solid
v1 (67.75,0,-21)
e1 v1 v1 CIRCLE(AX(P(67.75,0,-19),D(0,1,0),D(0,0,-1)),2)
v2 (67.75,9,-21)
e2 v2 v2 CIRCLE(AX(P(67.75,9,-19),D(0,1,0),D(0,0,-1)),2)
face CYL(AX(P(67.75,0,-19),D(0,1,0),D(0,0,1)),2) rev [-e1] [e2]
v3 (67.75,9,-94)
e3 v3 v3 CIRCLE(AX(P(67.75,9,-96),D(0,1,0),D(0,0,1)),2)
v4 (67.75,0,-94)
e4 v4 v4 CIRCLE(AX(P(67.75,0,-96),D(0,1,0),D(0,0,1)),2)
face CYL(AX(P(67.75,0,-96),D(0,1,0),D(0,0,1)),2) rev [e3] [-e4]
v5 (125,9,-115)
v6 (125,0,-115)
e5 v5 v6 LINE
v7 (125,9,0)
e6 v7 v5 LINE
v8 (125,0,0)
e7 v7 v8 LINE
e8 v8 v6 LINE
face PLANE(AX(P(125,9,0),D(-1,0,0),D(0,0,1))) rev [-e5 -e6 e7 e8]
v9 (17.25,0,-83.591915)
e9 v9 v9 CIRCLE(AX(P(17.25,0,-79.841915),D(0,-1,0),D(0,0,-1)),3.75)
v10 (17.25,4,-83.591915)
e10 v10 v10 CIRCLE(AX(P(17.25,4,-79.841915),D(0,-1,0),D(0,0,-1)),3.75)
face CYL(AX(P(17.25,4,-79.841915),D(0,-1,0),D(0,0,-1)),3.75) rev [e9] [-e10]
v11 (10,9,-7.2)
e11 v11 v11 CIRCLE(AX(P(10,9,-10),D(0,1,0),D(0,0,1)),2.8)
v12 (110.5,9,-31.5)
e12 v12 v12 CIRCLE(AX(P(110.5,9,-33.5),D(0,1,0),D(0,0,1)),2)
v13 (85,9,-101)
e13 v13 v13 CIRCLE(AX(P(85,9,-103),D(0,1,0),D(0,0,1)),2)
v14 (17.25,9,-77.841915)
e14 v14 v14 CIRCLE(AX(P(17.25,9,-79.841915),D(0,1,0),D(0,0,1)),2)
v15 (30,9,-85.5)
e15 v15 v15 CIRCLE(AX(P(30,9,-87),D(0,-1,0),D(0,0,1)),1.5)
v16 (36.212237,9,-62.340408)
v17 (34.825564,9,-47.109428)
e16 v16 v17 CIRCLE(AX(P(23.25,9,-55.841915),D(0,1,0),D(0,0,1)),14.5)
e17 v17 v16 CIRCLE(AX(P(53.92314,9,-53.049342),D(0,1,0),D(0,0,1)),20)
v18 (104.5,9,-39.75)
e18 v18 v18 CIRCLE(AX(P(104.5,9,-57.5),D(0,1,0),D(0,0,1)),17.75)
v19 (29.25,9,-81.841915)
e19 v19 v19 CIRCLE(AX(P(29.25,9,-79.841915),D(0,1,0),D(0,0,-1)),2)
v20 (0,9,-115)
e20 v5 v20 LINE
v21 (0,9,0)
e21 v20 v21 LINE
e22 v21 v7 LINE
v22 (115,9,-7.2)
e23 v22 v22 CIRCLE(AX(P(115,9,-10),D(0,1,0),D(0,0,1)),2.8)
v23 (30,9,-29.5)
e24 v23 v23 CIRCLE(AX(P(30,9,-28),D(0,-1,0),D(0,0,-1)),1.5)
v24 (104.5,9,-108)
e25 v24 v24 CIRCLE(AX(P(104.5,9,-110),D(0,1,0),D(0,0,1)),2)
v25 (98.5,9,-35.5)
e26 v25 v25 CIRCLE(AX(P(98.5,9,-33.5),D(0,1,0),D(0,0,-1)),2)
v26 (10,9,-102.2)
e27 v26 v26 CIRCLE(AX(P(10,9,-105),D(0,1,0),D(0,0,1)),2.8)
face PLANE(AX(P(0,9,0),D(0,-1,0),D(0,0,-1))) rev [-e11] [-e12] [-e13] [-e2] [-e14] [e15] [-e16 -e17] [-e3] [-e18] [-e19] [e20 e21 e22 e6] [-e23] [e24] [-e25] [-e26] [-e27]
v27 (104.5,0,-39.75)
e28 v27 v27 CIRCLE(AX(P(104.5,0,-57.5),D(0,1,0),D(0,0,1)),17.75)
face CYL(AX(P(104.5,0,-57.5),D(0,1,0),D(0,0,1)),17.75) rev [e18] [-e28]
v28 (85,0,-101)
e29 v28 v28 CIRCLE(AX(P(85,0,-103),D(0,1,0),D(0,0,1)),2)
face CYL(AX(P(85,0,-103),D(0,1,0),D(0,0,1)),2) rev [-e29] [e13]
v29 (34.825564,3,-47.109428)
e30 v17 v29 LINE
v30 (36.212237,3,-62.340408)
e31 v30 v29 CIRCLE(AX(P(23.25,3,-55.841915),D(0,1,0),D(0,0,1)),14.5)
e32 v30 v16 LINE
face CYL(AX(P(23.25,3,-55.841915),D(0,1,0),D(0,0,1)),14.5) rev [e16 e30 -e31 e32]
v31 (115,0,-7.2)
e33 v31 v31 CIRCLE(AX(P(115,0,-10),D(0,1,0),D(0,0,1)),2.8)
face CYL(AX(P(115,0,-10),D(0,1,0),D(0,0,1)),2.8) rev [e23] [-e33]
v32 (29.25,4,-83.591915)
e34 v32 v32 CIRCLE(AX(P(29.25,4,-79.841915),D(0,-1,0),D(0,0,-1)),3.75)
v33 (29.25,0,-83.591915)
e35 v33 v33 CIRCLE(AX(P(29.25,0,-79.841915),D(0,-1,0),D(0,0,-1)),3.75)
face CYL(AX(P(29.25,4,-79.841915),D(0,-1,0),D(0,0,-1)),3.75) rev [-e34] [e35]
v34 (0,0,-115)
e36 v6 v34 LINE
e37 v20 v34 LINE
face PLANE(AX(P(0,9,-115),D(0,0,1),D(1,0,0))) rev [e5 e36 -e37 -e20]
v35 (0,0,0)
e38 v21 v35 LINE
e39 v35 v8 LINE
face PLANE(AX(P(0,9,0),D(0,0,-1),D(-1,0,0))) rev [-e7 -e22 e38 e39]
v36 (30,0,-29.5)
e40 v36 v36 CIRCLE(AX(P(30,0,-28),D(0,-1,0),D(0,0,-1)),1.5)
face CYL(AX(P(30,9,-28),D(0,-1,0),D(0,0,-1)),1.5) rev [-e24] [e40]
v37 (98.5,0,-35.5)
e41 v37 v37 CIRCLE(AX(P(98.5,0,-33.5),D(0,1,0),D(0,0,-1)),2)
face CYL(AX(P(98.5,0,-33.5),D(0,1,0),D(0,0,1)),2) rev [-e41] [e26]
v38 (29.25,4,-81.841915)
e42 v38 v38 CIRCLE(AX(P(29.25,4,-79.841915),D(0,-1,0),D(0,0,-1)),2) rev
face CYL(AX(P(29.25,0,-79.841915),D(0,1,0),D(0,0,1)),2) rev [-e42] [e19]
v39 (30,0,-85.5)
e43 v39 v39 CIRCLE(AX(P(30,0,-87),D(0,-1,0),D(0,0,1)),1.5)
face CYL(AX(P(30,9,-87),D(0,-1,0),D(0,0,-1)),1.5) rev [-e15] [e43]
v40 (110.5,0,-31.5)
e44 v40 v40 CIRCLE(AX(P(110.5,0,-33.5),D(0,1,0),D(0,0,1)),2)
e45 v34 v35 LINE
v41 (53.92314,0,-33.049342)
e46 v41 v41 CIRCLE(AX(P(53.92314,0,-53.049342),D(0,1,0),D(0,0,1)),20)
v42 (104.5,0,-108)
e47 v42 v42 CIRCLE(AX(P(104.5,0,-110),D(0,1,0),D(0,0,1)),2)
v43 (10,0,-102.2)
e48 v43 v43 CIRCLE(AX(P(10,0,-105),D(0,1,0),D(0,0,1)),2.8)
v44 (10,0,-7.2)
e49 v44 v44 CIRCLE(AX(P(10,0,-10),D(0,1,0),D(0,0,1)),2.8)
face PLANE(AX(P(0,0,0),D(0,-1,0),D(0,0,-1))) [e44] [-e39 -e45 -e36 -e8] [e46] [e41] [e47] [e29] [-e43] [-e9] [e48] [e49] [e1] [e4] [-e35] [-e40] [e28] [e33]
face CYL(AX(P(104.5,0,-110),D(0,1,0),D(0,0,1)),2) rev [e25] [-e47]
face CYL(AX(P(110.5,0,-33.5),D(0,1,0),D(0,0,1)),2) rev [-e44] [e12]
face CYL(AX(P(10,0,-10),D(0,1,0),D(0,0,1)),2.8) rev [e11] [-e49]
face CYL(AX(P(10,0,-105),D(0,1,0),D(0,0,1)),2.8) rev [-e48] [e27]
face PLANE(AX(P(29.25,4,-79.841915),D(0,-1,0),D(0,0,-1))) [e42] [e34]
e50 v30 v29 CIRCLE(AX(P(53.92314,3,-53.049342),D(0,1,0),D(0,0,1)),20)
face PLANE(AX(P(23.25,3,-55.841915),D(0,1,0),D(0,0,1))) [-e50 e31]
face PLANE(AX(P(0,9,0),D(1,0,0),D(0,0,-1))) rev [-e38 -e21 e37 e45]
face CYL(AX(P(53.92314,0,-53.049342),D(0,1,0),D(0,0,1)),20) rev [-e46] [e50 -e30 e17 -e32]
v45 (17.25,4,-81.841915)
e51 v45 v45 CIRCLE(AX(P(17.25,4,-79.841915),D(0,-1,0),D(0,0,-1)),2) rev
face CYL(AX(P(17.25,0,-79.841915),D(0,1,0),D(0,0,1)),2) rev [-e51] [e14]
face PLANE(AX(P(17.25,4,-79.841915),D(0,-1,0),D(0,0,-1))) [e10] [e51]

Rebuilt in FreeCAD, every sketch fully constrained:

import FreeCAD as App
import Part
import Sketcher

V = App.Vector
Q = App.Units.Quantity

doc = App.newDocument("Part")
body = doc.addObject("PartDesign::Body", "Body")

# Sketch on XZ plane
sketch1 = doc.addObject("Sketcher::SketchObject", "Sketch")
body.addObject(sketch1)
sketch1.AttachmentSupport = (doc.XZ_Plane, [""])
sketch1.MapMode = "FlatFace"
sketch1.addGeometry([
    Part.LineSegment(V(0, -115, 0), V(0, 0, 0)),
    Part.LineSegment(V(0, 0, 0), V(125, 0, 0)),
    Part.LineSegment(V(125, 0, 0), V(125, -115, 0)),
    Part.LineSegment(V(125, -115, 0), V(0, -115, 0)),
], False)
sketch1.addConstraint([
    Sketcher.Constraint("Coincident", 0, 2, 1, 1),
    Sketcher.Constraint("Coincident", 1, 2, 2, 1),
    Sketcher.Constraint("Coincident", 2, 2, 3, 1),
    Sketcher.Constraint("Coincident", 3, 2, 0, 1),
    Sketcher.Constraint("Vertical", 0),
    Sketcher.Constraint("Horizontal", 1),
    Sketcher.Constraint("Vertical", 2),
    Sketcher.Constraint("Horizontal", 3),
    Sketcher.Constraint("Coincident", 0, 2, -1, 1),
    Sketcher.Constraint("DistanceX", 1, 1, 1, 2, Q("125 mm")),
    Sketcher.Constraint("DistanceY", 0, 1, 0, 2, Q("115 mm")),
])
pad1 = doc.addObject("PartDesign::Pad", "Pad")
body.addObject(pad1)
pad1.Profile = sketch1
pad1.Length = 9
pad1.Reversed = True

# Sketch on XZ plane
sketch2 = doc.addObject("Sketcher::SketchObject", "Sketch001")
body.addObject(sketch2)
sketch2.AttachmentSupport = (doc.XZ_Plane, [""])
sketch2.MapMode = "FlatFace"
sketch2.AttachmentOffset = App.Placement(V(0, 0, -9), App.Rotation())
sketch2.addGeometry(Part.Circle(V(23, -56, 0), V(0, 0, 1), 14), False)
sketch2.addConstraint([
    Sketcher.Constraint("Diameter", 0, Q("29 mm")),
    Sketcher.Constraint("DistanceX", -1, 1, 0, 3, Q("23.25 mm")),
    Sketcher.Constraint("DistanceY", 0, 3, -1, 1, Q("55.841915 mm")),
])
pocket1 = doc.addObject("PartDesign::Pocket", "Pocket")
body.addObject(pocket1)
pocket1.Profile = sketch2
pocket1.Length = 6
pocket1.Reversed = True

# Sketch on XZ plane
sketch3 = doc.addObject("Sketcher::SketchObject", "Sketch002")
body.addObject(sketch3)
sketch3.AttachmentSupport = (doc.XZ_Plane, [""])
sketch3.MapMode = "FlatFace"
sketch3.AttachmentOffset = App.Placement(V(0, 0, -9), App.Rotation())
sketch3.addGeometry(Part.Circle(V(54, -53, 0), V(0, 0, 1), 20), False)
sketch3.addConstraint([
    Sketcher.Constraint("Diameter", 0, Q("40 mm")),
    Sketcher.Constraint("DistanceX", -1, 1, 0, 3, Q("53.92314 mm")),
    Sketcher.Constraint("DistanceY", 0, 3, -1, 1, Q("53.049342 mm")),
])
pocket2 = doc.addObject("PartDesign::Pocket", "Pocket001")
body.addObject(pocket2)
pocket2.Profile = sketch3
pocket2.Type = "ThroughAll"
pocket2.Reversed = True

# Sketch on XZ plane
sketch4 = doc.addObject("Sketcher::SketchObject", "Sketch003")
body.addObject(sketch4)
sketch4.AttachmentSupport = (doc.XZ_Plane, [""])
sketch4.MapMode = "FlatFace"
sketch4.AttachmentOffset = App.Placement(V(0, 0, -9), App.Rotation())
sketch4.addGeometry(Part.Circle(V(104, -58, 0), V(0, 0, 1), 18), False)
sketch4.addConstraint([
    Sketcher.Constraint("Diameter", 0, Q("35.5 mm")),
    Sketcher.Constraint("DistanceX", -1, 1, 0, 3, Q("104.5 mm")),
    Sketcher.Constraint("DistanceY", 0, 3, -1, 1, Q("57.5 mm")),
])
pocket3 = doc.addObject("PartDesign::Pocket", "Pocket002")
body.addObject(pocket3)
pocket3.Profile = sketch4
pocket3.Type = "ThroughAll"
pocket3.Reversed = True

# Sketch on XZ plane
sketch5 = doc.addObject("Sketcher::SketchObject", "Sketch004")
body.addObject(sketch5)
sketch5.AttachmentSupport = (doc.XZ_Plane, [""])
sketch5.MapMode = "FlatFace"
sketch5.addGeometry([
    Part.Circle(V(30, -28, 0), V(0, 0, 1), 1.5),
    Part.Circle(V(30, -87, 0), V(0, 0, 1), 1.5),
], False)
sketch5.addConstraint([
    Sketcher.Constraint("Equal", 0, 1),
    Sketcher.Constraint("Vertical", 0, 3, 1, 3),
    Sketcher.Constraint("Diameter", 0, Q("3 mm")),
    Sketcher.Constraint("DistanceX", -1, 1, 0, 3, Q("30 mm")),
    Sketcher.Constraint("DistanceY", 0, 3, -1, 1, Q("28 mm")),
    Sketcher.Constraint("DistanceY", 1, 3, -1, 1, Q("87 mm")),
])
pocket4 = doc.addObject("PartDesign::Pocket", "Pocket003")
body.addObject(pocket4)
pocket4.Profile = sketch5
pocket4.Type = "ThroughAll"

# Sketch on XZ plane
sketch6 = doc.addObject("Sketcher::SketchObject", "Sketch005")
body.addObject(sketch6)
sketch6.AttachmentSupport = (doc.XZ_Plane, [""])
sketch6.MapMode = "FlatFace"
sketch6.AttachmentOffset = App.Placement(V(0, 0, -9), App.Rotation())
sketch6.addGeometry([
    Part.Circle(V(104.5, -110, 0), V(0, 0, 1), 2),
    Part.Circle(V(85, -103, 0), V(0, 0, 1), 2),
    Part.Circle(V(110.5, -33.5, 0), V(0, 0, 1), 2),
    Part.Circle(V(98.5, -33.5, 0), V(0, 0, 1), 2),
], False)
sketch6.addConstraint([
    Sketcher.Constraint("Equal", 0, 1),
    Sketcher.Constraint("Equal", 1, 2),
    Sketcher.Constraint("Equal", 2, 3),
    Sketcher.Constraint("Horizontal", 2, 3, 3, 3),
    Sketcher.Constraint("Diameter", 0, Q("4 mm")),
    Sketcher.Constraint("DistanceY", 0, 3, -1, 1, Q("110 mm")),
    Sketcher.Constraint("DistanceX", -1, 1, 1, 3, Q("85 mm")),
    Sketcher.Constraint("DistanceY", 1, 3, -1, 1, Q("103 mm")),
    Sketcher.Constraint("DistanceX", 0, 3, 2, 3, Q("6 mm")),
    Sketcher.Constraint("DistanceX", 3, 3, 2, 3, Q("12 mm")),
    Sketcher.Constraint("DistanceX", -1, 1, 0, 3, Q("104.5 mm")),
    Sketcher.Constraint("DistanceY", 2, 3, -1, 1, Q("33.5 mm")),
])
pocket5 = doc.addObject("PartDesign::Pocket", "Pocket004")
body.addObject(pocket5)
pocket5.Profile = sketch6
pocket5.Type = "ThroughAll"
pocket5.Reversed = True

# Sketch on XZ plane
sketch7 = doc.addObject("Sketcher::SketchObject", "Sketch006")
body.addObject(sketch7)
sketch7.AttachmentSupport = (doc.XZ_Plane, [""])
sketch7.MapMode = "FlatFace"
sketch7.AttachmentOffset = App.Placement(V(0, 0, -9), App.Rotation())
sketch7.addGeometry([
    Part.Circle(V(67.8, -96, 0), V(0, 0, 1), 2),
    Part.Circle(V(67.8, -19, 0), V(0, 0, 1), 2),
    Part.Circle(V(17.2, -79.8, 0), V(0, 0, 1), 2),
    Part.Circle(V(29.2, -79.8, 0), V(0, 0, 1), 2),
], False)
sketch7.addConstraint([
    Sketcher.Constraint("Equal", 0, 1),
    Sketcher.Constraint("Equal", 1, 2),
    Sketcher.Constraint("Equal", 2, 3),
    Sketcher.Constraint("Horizontal", 2, 3, 3, 3),
    Sketcher.Constraint("Vertical", 0, 3, 1, 3),
    Sketcher.Constraint("Diameter", 0, Q("4 mm")),
    Sketcher.Constraint("DistanceY", 0, 3, -1, 1, Q("96 mm")),
    Sketcher.Constraint("DistanceY", 1, 3, -1, 1, Q("19 mm")),
    Sketcher.Constraint("DistanceX", 2, 3, 3, 3, Q("12 mm")),
    Sketcher.Constraint("DistanceX", 2, 3, 0, 3, Q("50.5 mm")),
    Sketcher.Constraint("DistanceX", -1, 1, 0, 3, Q("67.75 mm")),
    Sketcher.Constraint("DistanceY", 2, 3, -1, 1, Q("79.841915 mm")),
])
pocket6 = doc.addObject("PartDesign::Pocket", "Pocket005")
body.addObject(pocket6)
pocket6.Profile = sketch7
pocket6.Type = "ThroughAll"
pocket6.Reversed = True

# Sketch on XZ plane
sketch8 = doc.addObject("Sketcher::SketchObject", "Sketch007")
body.addObject(sketch8)
sketch8.AttachmentSupport = (doc.XZ_Plane, [""])
sketch8.MapMode = "FlatFace"
sketch8.AttachmentOffset = App.Placement(V(0, 0, -9), App.Rotation())
sketch8.addGeometry([
    Part.Circle(V(10, -105, 0), V(0, 0, 1), 2.8),
    Part.Circle(V(115, -10, 0), V(0, 0, 1), 2.8),
    Part.Circle(V(10, -10, 0), V(0, 0, 1), 2.8),
], False)
sketch8.addConstraint([
    Sketcher.Constraint("Equal", 0, 1),
    Sketcher.Constraint("Equal", 1, 2),
    Sketcher.Constraint("Horizontal", 1, 3, 2, 3),
    Sketcher.Constraint("Vertical", 0, 3, 2, 3),
    Sketcher.Constraint("Diameter", 0, Q("5.6 mm")),
    Sketcher.Constraint("DistanceX", -1, 1, 0, 3, Q("10 mm")),
    Sketcher.Constraint("DistanceY", 0, 3, -1, 1, Q("105 mm")),
    Sketcher.Constraint("DistanceX", -1, 1, 1, 3, Q("115 mm")),
    Sketcher.Constraint("DistanceY", 1, 3, -1, 1, Q("10 mm")),
])
pocket7 = doc.addObject("PartDesign::Pocket", "Pocket006")
body.addObject(pocket7)
pocket7.Profile = sketch8
pocket7.Type = "ThroughAll"
pocket7.Reversed = True

# Sketch on XZ plane
sketch9 = doc.addObject("Sketcher::SketchObject", "Sketch008")
body.addObject(sketch9)
sketch9.AttachmentSupport = (doc.XZ_Plane, [""])
sketch9.MapMode = "FlatFace"
sketch9.addGeometry([
    Part.Circle(V(29.2, -79.8, 0), V(0, 0, 1), 3.8),
    Part.Circle(V(17.2, -79.8, 0), V(0, 0, 1), 3.8),
], False)
sketch9.addConstraint([
    Sketcher.Constraint("Equal", 0, 1),
    Sketcher.Constraint("Horizontal", 0, 3, 1, 3),
    Sketcher.Constraint("Diameter", 0, Q("7.5 mm")),
    Sketcher.Constraint("DistanceX", 1, 3, 0, 3, Q("12 mm")),
    Sketcher.Constraint("DistanceX", -1, 1, 0, 3, Q("29.25 mm")),
    Sketcher.Constraint("DistanceY", 0, 3, -1, 1, Q("79.841915 mm")),
])
pocket8 = doc.addObject("PartDesign::Pocket", "Pocket007")
body.addObject(pocket8)
pocket8.Profile = sketch9
pocket8.Length = 4

doc.recompute()
